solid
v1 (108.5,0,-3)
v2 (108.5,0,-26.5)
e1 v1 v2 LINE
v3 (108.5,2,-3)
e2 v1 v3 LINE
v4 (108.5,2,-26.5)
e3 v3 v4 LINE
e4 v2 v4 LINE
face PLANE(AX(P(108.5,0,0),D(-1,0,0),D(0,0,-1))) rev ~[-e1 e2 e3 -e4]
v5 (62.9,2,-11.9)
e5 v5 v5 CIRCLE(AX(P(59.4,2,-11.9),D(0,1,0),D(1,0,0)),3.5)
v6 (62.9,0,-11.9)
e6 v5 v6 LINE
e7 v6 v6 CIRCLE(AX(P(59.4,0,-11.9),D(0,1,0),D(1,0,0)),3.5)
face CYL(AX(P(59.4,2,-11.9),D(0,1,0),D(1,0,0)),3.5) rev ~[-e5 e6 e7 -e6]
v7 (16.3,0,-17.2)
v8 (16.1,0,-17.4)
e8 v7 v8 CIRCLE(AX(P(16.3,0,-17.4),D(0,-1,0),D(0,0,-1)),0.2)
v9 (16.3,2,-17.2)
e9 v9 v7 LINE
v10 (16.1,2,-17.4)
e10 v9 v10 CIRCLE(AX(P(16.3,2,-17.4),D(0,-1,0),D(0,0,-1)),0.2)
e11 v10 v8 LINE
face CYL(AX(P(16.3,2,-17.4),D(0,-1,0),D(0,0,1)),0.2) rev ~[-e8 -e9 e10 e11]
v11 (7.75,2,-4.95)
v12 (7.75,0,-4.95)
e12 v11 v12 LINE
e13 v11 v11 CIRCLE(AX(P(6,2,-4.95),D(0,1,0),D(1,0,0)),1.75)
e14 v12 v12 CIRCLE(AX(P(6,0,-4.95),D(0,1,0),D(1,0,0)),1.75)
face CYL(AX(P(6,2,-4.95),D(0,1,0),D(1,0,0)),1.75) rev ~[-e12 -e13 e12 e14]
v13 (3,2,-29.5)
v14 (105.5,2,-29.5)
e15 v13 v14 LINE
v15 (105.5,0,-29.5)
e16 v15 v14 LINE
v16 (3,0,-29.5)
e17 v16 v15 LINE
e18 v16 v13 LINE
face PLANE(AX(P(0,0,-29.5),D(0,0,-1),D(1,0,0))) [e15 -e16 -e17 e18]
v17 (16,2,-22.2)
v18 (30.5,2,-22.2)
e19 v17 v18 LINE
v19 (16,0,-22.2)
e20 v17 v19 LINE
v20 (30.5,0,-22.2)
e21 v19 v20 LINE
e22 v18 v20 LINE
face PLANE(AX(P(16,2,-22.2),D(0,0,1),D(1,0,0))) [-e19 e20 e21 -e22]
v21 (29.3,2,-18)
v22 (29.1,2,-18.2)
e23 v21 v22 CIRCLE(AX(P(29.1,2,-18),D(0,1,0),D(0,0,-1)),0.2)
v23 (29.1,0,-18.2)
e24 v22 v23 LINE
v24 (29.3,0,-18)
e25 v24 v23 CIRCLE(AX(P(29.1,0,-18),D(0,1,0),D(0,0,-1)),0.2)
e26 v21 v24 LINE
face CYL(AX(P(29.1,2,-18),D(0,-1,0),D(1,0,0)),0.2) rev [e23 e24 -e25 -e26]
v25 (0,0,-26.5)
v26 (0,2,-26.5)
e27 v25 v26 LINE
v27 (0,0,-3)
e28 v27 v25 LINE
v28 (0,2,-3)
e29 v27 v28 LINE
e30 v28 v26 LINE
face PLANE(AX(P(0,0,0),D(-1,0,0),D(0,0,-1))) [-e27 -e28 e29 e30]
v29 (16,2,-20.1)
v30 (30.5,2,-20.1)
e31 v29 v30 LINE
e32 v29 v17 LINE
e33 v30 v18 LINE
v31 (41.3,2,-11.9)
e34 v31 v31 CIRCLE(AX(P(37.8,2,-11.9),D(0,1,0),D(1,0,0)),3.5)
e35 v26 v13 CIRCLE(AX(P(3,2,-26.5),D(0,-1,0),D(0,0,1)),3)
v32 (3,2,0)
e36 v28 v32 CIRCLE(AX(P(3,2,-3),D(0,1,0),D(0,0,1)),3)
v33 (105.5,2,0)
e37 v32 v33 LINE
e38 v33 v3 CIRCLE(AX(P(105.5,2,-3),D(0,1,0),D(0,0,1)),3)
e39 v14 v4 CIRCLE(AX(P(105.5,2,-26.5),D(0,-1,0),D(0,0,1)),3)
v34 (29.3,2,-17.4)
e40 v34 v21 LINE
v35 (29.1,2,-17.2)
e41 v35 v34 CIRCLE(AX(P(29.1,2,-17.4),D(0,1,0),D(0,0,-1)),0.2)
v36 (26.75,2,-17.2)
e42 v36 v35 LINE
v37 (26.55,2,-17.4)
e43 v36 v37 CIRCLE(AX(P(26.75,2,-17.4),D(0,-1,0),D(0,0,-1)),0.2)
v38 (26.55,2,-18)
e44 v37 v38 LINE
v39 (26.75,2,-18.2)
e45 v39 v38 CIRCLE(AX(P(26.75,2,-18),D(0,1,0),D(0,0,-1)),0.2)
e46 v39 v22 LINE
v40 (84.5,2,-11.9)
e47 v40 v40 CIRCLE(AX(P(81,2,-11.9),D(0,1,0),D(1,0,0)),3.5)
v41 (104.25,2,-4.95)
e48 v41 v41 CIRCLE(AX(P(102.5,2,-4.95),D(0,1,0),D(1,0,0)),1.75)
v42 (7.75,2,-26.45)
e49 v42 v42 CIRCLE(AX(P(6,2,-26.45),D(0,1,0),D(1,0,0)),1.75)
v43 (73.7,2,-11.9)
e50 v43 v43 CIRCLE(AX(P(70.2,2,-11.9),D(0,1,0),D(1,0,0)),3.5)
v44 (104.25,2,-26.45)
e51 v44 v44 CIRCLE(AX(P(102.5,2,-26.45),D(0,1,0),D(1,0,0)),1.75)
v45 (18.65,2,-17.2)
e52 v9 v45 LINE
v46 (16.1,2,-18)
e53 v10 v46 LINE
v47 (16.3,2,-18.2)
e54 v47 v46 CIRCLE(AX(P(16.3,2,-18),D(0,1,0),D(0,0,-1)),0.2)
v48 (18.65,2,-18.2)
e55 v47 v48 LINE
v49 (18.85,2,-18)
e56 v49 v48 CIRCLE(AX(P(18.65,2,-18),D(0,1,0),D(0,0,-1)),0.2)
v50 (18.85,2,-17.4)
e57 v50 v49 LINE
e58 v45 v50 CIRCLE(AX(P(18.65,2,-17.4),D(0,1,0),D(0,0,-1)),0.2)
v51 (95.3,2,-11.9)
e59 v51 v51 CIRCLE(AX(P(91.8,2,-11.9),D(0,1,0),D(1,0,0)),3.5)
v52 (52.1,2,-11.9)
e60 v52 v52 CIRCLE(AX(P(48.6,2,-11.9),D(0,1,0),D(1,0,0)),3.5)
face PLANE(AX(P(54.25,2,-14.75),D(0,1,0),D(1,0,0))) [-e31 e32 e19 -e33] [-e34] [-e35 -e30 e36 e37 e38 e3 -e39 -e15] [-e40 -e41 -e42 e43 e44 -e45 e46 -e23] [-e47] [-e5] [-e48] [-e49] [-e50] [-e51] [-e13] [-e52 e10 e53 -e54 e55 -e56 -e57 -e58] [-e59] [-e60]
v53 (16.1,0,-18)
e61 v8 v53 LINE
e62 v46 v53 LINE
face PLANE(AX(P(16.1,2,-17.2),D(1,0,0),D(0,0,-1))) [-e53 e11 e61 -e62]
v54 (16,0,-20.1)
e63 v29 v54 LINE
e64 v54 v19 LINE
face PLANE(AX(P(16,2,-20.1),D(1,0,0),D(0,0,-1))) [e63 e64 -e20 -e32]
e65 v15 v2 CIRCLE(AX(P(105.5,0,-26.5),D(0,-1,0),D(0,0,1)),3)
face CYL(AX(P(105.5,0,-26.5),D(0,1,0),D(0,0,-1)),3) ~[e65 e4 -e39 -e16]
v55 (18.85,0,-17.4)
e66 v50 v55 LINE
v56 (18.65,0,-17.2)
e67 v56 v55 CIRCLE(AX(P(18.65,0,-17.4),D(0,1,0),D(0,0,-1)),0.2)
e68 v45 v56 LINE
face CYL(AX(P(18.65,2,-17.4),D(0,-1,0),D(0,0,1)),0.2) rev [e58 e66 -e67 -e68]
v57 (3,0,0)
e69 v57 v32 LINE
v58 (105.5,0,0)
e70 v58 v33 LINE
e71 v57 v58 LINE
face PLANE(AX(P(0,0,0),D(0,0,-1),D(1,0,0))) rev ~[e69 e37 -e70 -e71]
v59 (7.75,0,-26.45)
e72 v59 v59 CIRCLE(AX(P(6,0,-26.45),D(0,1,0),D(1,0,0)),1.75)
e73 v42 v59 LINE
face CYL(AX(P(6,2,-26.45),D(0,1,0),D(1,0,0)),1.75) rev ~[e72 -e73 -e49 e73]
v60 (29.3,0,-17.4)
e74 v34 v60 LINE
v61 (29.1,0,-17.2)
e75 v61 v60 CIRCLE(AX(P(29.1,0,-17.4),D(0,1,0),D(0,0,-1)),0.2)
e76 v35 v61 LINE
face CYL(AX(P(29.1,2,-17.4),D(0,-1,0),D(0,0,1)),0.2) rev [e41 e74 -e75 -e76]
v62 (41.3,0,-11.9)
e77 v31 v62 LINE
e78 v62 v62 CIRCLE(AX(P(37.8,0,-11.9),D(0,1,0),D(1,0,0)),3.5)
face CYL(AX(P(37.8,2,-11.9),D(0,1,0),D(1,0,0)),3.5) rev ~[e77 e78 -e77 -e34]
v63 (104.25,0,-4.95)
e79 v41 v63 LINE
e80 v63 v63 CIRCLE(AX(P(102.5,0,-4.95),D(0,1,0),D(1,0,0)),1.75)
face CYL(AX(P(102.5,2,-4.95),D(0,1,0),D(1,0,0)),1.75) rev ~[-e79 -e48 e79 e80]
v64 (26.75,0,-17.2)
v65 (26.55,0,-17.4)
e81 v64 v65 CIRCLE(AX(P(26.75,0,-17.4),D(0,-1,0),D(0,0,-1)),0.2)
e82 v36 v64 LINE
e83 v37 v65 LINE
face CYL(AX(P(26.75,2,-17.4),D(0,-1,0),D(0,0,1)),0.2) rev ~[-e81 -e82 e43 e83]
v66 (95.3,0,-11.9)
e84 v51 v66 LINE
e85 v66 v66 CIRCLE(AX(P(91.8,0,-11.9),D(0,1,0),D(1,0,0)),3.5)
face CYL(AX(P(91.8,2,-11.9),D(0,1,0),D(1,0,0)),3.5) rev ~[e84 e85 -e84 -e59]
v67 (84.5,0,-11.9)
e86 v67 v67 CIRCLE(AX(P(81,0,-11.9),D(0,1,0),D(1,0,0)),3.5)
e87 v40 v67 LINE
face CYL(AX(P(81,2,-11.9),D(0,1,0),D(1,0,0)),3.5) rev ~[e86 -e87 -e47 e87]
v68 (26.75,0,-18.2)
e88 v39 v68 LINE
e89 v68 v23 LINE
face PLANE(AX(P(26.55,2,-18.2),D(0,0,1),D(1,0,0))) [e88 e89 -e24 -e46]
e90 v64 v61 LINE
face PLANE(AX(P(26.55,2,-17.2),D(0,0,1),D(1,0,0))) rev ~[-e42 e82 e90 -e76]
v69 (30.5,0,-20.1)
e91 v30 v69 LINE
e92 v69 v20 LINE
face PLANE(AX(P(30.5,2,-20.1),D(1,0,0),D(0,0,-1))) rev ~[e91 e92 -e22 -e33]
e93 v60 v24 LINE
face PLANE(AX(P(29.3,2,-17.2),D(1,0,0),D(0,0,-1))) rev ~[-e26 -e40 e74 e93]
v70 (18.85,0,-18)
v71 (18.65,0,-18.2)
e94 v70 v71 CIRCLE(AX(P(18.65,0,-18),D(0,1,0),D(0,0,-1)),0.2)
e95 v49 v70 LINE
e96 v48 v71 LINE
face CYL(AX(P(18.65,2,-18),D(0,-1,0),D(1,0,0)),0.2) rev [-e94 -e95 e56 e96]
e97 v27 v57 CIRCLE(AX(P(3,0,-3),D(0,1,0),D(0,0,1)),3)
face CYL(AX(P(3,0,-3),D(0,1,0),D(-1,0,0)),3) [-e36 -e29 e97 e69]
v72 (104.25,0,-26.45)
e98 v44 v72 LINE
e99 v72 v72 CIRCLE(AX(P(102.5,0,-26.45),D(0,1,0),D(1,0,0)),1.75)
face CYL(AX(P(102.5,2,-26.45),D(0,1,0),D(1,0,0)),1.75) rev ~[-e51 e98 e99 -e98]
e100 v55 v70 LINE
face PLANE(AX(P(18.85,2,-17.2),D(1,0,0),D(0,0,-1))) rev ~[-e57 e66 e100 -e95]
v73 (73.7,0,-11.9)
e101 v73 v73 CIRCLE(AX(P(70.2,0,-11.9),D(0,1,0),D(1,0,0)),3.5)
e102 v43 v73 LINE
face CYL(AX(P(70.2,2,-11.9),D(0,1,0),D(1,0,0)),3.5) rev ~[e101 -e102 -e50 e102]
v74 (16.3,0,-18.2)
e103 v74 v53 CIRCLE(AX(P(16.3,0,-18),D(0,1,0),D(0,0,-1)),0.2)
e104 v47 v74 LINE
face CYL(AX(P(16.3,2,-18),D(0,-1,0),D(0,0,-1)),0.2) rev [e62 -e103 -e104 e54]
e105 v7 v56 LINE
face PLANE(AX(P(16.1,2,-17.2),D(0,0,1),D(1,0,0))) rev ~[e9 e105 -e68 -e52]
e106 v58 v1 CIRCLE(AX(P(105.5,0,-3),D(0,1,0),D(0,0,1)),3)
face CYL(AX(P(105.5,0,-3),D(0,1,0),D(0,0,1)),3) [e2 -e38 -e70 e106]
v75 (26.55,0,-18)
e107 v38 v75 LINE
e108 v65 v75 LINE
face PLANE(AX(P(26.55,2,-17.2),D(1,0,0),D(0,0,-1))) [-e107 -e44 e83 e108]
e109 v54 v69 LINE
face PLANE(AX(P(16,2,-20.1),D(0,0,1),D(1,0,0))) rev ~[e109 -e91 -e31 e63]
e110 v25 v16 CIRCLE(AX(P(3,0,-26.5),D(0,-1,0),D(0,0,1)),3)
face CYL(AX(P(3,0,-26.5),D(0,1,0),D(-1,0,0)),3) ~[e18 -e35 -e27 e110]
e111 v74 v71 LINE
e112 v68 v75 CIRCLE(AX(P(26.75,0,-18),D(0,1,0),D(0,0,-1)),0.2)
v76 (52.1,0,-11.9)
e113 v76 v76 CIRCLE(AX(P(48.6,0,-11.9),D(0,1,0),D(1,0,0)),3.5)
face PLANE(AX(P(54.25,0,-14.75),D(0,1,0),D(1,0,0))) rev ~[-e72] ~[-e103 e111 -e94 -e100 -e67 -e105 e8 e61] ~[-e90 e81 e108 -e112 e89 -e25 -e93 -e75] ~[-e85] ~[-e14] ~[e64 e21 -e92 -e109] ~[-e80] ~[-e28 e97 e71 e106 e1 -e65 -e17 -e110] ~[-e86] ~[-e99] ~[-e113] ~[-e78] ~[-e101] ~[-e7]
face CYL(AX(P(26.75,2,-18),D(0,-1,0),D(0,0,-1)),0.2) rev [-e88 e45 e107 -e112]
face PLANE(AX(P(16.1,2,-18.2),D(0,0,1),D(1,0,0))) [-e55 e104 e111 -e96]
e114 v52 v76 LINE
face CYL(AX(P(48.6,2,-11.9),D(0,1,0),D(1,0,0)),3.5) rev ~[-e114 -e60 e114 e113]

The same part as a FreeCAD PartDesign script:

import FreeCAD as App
import Part
import Sketcher

V = App.Vector


def edges_at(feature, points):
    """Names of the edges that pass closest to the given points."""
    edges = feature.Shape.Edges
    near = lambda p: min(range(len(edges)), key=lambda i: edges[i].distToShape(Part.Vertex(*p))[0])
    return sorted({f"Edge{near(p) + 1}" for p in points})


def add_polygon(sketch, points):
    """Adds a closed chain of lines whose ends are joined by coincident constraints."""
    first, n = sketch.GeometryCount, len(points)
    for a, b in zip(points, points[1:] + points[:1]):
        sketch.addGeometry(Part.LineSegment(App.Vector(*a, 0), App.Vector(*b, 0)), False)
    for i in range(n):
        sketch.addConstraint(Sketcher.Constraint("Coincident", first + i, 2, first + (i + 1) % n, 1))

doc = App.newDocument("Part")
body = doc.addObject("PartDesign::Body", "Body")

sketch1 = doc.addObject("Sketcher::SketchObject", "Sketch")
body.addObject(sketch1)
sketch1.AttachmentSupport = (doc.XZ_Plane, [""])
sketch1.MapMode = "FlatFace"
add_polygon(sketch1, [(0, -29.5), (0, 0), (108.5, 0), (108.5, -29.5)])
sketch1.addConstraint([
    Sketcher.Constraint("Vertical", 0),
    Sketcher.Constraint("Horizontal", 1),
    Sketcher.Constraint("Vertical", 2),
    Sketcher.Constraint("Horizontal", 3),
    Sketcher.Constraint("Coincident", 0, 2, -1, 1),
    Sketcher.Constraint("DistanceX", 1, 1, 1, 2, 108.5),
    Sketcher.Constraint("DistanceY", 0, 1, 0, 2, 29.5),
])
pad1 = doc.addObject("PartDesign::Pad", "Pad")
body.addObject(pad1)
pad1.Profile = sketch1
pad1.Length = 2
pad1.Reversed = True

sketch2 = doc.addObject("Sketcher::SketchObject", "Sketch001")
body.addObject(sketch2)
sketch2.AttachmentSupport = (doc.XZ_Plane, [""])
sketch2.MapMode = "FlatFace"
sketch2.AttachmentOffset = App.Placement(V(0, 0, -2), App.Rotation())
sketch2.addGeometry([
    Part.Circle(V(6, -26.45, 0), V(0, 0, 1), 1.75),
    Part.Circle(V(6, -4.95, 0), V(0, 0, 1), 1.75),
    Part.Circle(V(102.5, -4.95, 0), V(0, 0, 1), 1.75),
    Part.Circle(V(102.5, -26.45, 0), V(0, 0, 1), 1.75),
], False)
sketch2.addConstraint([
    Sketcher.Constraint("Equal", 0, 1),
    Sketcher.Constraint("Equal", 1, 2),
    Sketcher.Constraint("Equal", 2, 3),
    Sketcher.Constraint("Horizontal", 1, 3, 2, 3),
    Sketcher.Constraint("Horizontal", 0, 3, 3, 3),
    Sketcher.Constraint("Vertical", 0, 3, 1, 3),
    Sketcher.Constraint("Vertical", 2, 3, 3, 3),
    Sketcher.Constraint("Diameter", 0, 3.5),
    Sketcher.Constraint("DistanceX", -1, 1, 0, 3, 6.0),
    Sketcher.Constraint("DistanceX", -1, 1, 2, 3, 102.5),
    Sketcher.Constraint("DistanceY", 0, 3, 1, 3, 21.5),
    Sketcher.Constraint("DistanceY", 0, 3, -1, 1, 26.45),
])
pocket1 = doc.addObject("PartDesign::Pocket", "Pocket")
body.addObject(pocket1)
pocket1.Profile = sketch2
pocket1.Type = "ThroughAll"
pocket1.Reversed = True
doc.recompute()

fillet = doc.addObject("PartDesign::Fillet", "Fillet")
body.addObject(fillet)
fillet.Base = (pocket1, edges_at(pocket1, [
    (0, 1, -29.5),
    (108.5, 1, -29.5),
    (108.5, 1, 0),
    (0, 1, 0),
]))
fillet.Radius = 3

sketch3 = doc.addObject("Sketcher::SketchObject", "Sketch002")
body.addObject(sketch3)
sketch3.AttachmentSupport = (doc.XZ_Plane, [""])
sketch3.MapMode = "FlatFace"
sketch3.AttachmentOffset = App.Placement(V(0, 0, -2), App.Rotation())
sketch3.addGeometry(Part.Circle(V(91.8, -11.9, 0), V(0, 0, 1), 3.5), False)
sketch3.addGeometry(Part.Circle(V(81, -11.9, 0), V(0, 0, 1), 3.5), False)
sketch3.addGeometry(Part.Circle(V(70.2, -11.9, 0), V(0, 0, 1), 3.5), False)
sketch3.addGeometry(Part.Circle(V(59.4, -11.9, 0), V(0, 0, 1), 3.5), False)
sketch3.addGeometry(Part.Circle(V(48.6, -11.9, 0), V(0, 0, 1), 3.5), False)
sketch3.addGeometry(Part.Circle(V(37.8, -11.9, 0), V(0, 0, 1), 3.5), False)
add_polygon(sketch3, [(16, -22.2), (16, -20.1), (30.5, -20.1), (30.5, -22.2)])
add_polygon(sketch3, [(16.1, -18.2), (16.1, -17.2), (18.85, -17.2), (18.85, -18.2)])
add_polygon(sketch3, [(26.55, -18.2), (26.55, -17.2), (29.3, -17.2), (29.3, -18.2)])
sketch3.addConstraint([
    Sketcher.Constraint("Vertical", 6),
    Sketcher.Constraint("Horizontal", 7),
    Sketcher.Constraint("Vertical", 8),
    Sketcher.Constraint("Horizontal", 9),
    Sketcher.Constraint("Vertical", 10),
    Sketcher.Constraint("Horizontal", 11),
    Sketcher.Constraint("Vertical", 12),
    Sketcher.Constraint("Horizontal", 13),
    Sketcher.Constraint("Vertical", 14),
    Sketcher.Constraint("Horizontal", 15),
    Sketcher.Constraint("Vertical", 16),
    Sketcher.Constraint("Horizontal", 17),
    Sketcher.Constraint("Equal", 0, 1),
    Sketcher.Constraint("Equal", 1, 2),
    Sketcher.Constraint("Equal", 2, 3),
    Sketcher.Constraint("Equal", 3, 4),
    Sketcher.Constraint("Equal", 4, 5),
    Sketcher.Constraint("Horizontal", 0, 3, 1, 3),
    Sketcher.Constraint("Horizontal", 1, 3, 2, 3),
    Sketcher.Constraint("Horizontal", 2, 3, 3, 3),
    Sketcher.Constraint("Horizontal", 3, 3, 4, 3),
    Sketcher.Constraint("Horizontal", 4, 3, 5, 3),
    Sketcher.Constraint("Horizontal", 11, 2, 14, 2),
    Sketcher.Constraint("Horizontal", 13, 2, 16, 2),
    Sketcher.Constraint("Equal", 13, 15),
    Sketcher.Constraint("Diameter", 0, 7.0),
    Sketcher.Constraint("DistanceY", 10, 1, 10, 2, 1.0),
    Sketcher.Constraint("DistanceX", 7, 1, 7, 2, 14.5),
    Sketcher.Constraint("DistanceY", 6, 1, 6, 2, 2.1),
    Sketcher.Constraint("DistanceX", -1, 1, 1, 3, 81.0),
    Sketcher.Constraint("DistanceX", -1, 1, 6, 2, 16.0),
    Sketcher.Constraint("DistanceX", 5, 3, 0, 3, 54.0),
    Sketcher.Constraint("DistanceY", 9, 2, 10, 2, 5.0),
    Sketcher.Constraint("DistanceX", 11, 1, 11, 2, 2.75),
    Sketcher.Constraint("DistanceX", -1, 1, 0, 3, 91.8),
    Sketcher.Constraint("DistanceY", 0, 3, -1, 1, 11.9),
    Sketcher.Constraint("DistanceX", -1, 1, 2, 3, 70.2),
    Sketcher.Constraint("DistanceX", -1, 1, 3, 3, 59.4),
    Sketcher.Constraint("DistanceX", -1, 1, 4, 3, 48.6),
    Sketcher.Constraint("DistanceY", 6, 2, -1, 1, 20.1),
    Sketcher.Constraint("DistanceX", -1, 1, 10, 2, 16.1),
    Sketcher.Constraint("DistanceX", -1, 1, 15, 2, 29.3),
])
pocket2 = doc.addObject("PartDesign::Pocket", "Pocket001")
body.addObject(pocket2)
pocket2.Profile = sketch3
pocket2.Type = "ThroughAll"
pocket2.Reversed = True
doc.recompute()

fillet2 = doc.addObject("PartDesign::Fillet", "Fillet001")
body.addObject(fillet2)
fillet2.Base = (pocket2, edges_at(pocket2, [
    (26.55, 1, -17.2),
    (26.55, 1, -18.2),
    (29.3, 1, -18.2),
    (29.3, 1, -17.2),
    (18.85, 1, -18.2),
    (18.85, 1, -17.2),
    (16.1, 1, -17.2),
    (16.1, 1, -18.2),
]))
fillet2.Radius = 0.2

doc.recompute()
